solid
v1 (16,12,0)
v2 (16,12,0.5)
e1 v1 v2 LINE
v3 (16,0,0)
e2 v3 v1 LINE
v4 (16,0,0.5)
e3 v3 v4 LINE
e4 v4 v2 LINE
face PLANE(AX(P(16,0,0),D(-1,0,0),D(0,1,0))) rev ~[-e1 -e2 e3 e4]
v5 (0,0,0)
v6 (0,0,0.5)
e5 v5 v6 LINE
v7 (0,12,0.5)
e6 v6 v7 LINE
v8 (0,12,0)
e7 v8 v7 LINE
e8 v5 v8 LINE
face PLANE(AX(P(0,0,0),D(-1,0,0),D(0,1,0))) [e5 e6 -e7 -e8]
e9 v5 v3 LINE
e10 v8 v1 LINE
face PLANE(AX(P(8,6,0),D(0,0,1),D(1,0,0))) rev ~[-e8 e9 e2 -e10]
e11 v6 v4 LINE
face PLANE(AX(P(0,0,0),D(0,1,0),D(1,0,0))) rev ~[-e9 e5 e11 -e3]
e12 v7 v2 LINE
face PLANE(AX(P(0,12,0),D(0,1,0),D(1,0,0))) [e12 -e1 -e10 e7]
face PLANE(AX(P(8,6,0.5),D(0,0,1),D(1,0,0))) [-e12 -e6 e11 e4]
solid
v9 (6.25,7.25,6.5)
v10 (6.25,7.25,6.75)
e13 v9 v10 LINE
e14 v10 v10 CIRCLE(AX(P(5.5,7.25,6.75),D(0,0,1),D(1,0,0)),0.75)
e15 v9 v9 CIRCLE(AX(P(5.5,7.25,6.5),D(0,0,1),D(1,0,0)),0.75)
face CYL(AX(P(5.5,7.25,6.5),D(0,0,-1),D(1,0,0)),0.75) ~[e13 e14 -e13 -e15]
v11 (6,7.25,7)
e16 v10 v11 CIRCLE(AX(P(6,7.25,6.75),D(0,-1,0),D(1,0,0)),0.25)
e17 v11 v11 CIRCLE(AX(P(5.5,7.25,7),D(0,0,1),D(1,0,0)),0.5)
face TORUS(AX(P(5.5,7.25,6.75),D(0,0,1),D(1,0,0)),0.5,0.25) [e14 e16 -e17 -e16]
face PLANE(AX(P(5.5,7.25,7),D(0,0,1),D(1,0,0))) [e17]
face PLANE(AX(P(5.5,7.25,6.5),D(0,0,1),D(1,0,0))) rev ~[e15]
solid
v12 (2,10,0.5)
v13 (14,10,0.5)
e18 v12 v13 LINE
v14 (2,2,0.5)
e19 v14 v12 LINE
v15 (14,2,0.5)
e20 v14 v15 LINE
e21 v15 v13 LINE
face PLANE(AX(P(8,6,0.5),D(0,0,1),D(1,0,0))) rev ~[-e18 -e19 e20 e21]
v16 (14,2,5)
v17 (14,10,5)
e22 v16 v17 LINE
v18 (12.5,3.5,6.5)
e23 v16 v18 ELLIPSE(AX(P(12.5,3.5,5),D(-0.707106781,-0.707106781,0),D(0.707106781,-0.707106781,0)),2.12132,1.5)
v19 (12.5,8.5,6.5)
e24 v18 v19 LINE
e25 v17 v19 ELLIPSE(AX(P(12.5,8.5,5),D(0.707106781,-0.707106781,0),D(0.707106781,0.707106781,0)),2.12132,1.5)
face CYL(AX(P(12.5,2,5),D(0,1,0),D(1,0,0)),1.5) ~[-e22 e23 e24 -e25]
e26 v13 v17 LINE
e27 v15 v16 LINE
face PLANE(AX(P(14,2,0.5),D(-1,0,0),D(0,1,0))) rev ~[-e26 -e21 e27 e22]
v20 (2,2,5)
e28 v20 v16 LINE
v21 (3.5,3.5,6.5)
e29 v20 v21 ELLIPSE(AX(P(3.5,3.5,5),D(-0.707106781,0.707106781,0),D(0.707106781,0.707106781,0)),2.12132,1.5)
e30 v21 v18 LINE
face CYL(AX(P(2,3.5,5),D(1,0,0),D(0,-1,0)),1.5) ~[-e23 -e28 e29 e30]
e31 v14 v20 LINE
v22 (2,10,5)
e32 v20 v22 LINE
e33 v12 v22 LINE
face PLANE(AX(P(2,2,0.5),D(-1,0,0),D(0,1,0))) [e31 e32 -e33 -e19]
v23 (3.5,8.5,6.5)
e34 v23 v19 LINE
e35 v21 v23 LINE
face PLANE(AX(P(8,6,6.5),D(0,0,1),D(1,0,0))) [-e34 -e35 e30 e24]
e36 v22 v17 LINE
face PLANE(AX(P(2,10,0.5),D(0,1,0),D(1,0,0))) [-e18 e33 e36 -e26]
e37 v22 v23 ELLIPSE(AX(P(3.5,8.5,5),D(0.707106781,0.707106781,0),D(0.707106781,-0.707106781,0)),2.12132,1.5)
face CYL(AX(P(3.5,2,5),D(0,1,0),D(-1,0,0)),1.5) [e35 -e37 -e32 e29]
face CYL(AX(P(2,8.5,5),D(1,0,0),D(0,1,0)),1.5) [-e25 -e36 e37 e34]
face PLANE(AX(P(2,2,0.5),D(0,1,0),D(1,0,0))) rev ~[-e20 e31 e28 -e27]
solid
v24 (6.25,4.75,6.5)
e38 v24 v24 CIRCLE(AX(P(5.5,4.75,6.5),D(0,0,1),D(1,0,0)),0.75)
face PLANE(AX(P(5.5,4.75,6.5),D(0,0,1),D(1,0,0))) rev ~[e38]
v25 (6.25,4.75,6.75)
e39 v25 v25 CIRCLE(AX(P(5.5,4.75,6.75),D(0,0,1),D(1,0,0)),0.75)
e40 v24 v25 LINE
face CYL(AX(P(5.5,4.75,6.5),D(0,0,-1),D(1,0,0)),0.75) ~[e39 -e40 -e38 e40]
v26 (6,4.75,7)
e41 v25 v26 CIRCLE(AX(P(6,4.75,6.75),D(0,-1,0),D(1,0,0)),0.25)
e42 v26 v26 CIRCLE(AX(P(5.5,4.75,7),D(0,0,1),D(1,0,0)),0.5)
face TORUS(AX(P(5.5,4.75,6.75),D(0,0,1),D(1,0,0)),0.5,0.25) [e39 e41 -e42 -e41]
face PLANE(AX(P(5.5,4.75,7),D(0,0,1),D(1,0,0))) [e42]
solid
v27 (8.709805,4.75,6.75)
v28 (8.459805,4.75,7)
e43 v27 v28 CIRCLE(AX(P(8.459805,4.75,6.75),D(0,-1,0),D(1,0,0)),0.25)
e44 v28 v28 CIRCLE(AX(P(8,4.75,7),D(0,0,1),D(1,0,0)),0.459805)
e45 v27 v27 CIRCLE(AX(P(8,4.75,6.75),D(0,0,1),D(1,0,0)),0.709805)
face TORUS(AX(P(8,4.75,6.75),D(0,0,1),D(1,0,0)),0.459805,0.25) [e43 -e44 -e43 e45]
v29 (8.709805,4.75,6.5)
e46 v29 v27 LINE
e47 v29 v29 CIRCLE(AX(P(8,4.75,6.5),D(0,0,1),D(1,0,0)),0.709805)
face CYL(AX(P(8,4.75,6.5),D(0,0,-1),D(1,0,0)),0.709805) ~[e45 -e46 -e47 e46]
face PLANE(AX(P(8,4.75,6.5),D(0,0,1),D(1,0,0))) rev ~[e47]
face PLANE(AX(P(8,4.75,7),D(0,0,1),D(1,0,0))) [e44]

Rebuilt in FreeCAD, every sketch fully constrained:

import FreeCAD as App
import Part
import Sketcher

V = App.Vector
Q = App.Units.Quantity


def edges_at(feature, points):
    """Names of the edges that pass closest to the given points."""
    edges = feature.Shape.Edges
    near = lambda p: min(range(len(edges)), key=lambda i: edges[i].distToShape(Part.Vertex(*p))[0])
    return sorted({f"Edge{near(p) + 1}" for p in points})


def add_polygon(sketch, points):
    """Adds a closed chain of lines whose ends are joined by coincident constraints."""
    first, n = sketch.GeometryCount, len(points)
    for a, b in zip(points, points[1:] + points[:1]):
        sketch.addGeometry(Part.LineSegment(App.Vector(*a, 0), App.Vector(*b, 0)), False)
    for i in range(n):
        sketch.addConstraint(Sketcher.Constraint("Coincident", first + i, 2, first + (i + 1) % n, 1))

doc = App.newDocument("Part")
body = doc.addObject("PartDesign::Body", "Body")

# Sketch on XY plane
sketch1 = body.newObject("Sketcher::SketchObject", "Sketch")
sketch1.AttachmentSupport = (doc.getObject("XY_Plane"), [""])
sketch1.MapMode = "FlatFace"
add_polygon(sketch1, [(0, 12), (0, 0), (16, 0), (16, 12)])  # lines 0-3
sketch1.addConstraint(Sketcher.Constraint("Vertical", 0))
sketch1.addConstraint(Sketcher.Constraint("Horizontal", 1))
sketch1.addConstraint(Sketcher.Constraint("Vertical", 2))
sketch1.addConstraint(Sketcher.Constraint("Horizontal", 3))
sketch1.addConstraint(Sketcher.Constraint("Coincident", 0, 2, -1, 1))
sketch1.addConstraint(Sketcher.Constraint("DistanceX", 1, 1, 1, 2, Q("16 mm")))
sketch1.addConstraint(Sketcher.Constraint("DistanceY", 0, 2, 0, 1, Q("12 mm")))
pad1 = body.newObject("PartDesign::Pad", "Pad")
pad1.Profile = sketch1
pad1.Length = 0.5
body2 = doc.addObject("PartDesign::Body", "Body001")

# Sketch on XY plane
sketch2 = body2.newObject("Sketcher::SketchObject", "Sketch001")
sketch2.AttachmentSupport = (doc.getObject("XY_Plane001"), [""])
sketch2.MapMode = "FlatFace"
sketch2.AttachmentOffset = App.Placement(V(0, 0, 0.5), App.Rotation())
add_polygon(sketch2, [(2, 10), (2, 2), (14, 2), (14, 10)])  # lines 0-3
sketch2.addConstraint(Sketcher.Constraint("Vertical", 0))
sketch2.addConstraint(Sketcher.Constraint("Horizontal", 1))
sketch2.addConstraint(Sketcher.Constraint("Vertical", 2))
sketch2.addConstraint(Sketcher.Constraint("Horizontal", 3))
sketch2.addConstraint(Sketcher.Constraint("DistanceX", 1, 1, 1, 2, Q("12 mm")))
sketch2.addConstraint(Sketcher.Constraint("DistanceY", 0, 2, 0, 1, Q("8 mm")))
sketch2.addConstraint(Sketcher.Constraint("DistanceX", -1, 1, 0, 2, Q("2 mm")))
sketch2.addConstraint(Sketcher.Constraint("DistanceY", -1, 1, 0, 2, Q("2 mm")))
pad2 = body2.newObject("PartDesign::Pad", "Pad001")
pad2.Profile = sketch2
pad2.Length = 6
doc.recompute()

fillet = body2.newObject("PartDesign::Fillet", "Fillet")
fillet.Base = (pad2, edges_at(pad2, [
    (8, 2, 6.5),
    (14, 6, 6.5),
    (8, 10, 6.5),
    (2, 6, 6.5),
]))
fillet.Radius = 1.5
body3 = doc.addObject("PartDesign::Body", "Body002")

# Sketch on XY plane
sketch3 = body3.newObject("Sketcher::SketchObject", "Sketch002")
sketch3.AttachmentSupport = (doc.getObject("XY_Plane002"), [""])
sketch3.MapMode = "FlatFace"
sketch3.AttachmentOffset = App.Placement(V(0, 0, 6.5), App.Rotation())
sketch3.addGeometry(Part.Circle(V(5.5, 4.8, 0), V(0, 0, 1), 0.8), False)
sketch3.addConstraint(Sketcher.Constraint("Diameter", 0, Q("1.5 mm")))
sketch3.addConstraint(Sketcher.Constraint("DistanceX", -1, 1, 0, 3, Q("5.5 mm")))
sketch3.addConstraint(Sketcher.Constraint("DistanceY", -1, 1, 0, 3, Q("4.75 mm")))
pad3 = body3.newObject("PartDesign::Pad", "Pad002")
pad3.Profile = sketch3
pad3.Length = 0.5
doc.recompute()

fillet2 = body3.newObject("PartDesign::Fillet", "Fillet001")
fillet2.Base = (pad3, edges_at(pad3, [(4.75, 4.75, 7)]))
fillet2.Radius = 0.25
body4 = doc.addObject("PartDesign::Body", "Body003")

# Sketch on XY plane
sketch4 = body4.newObject("Sketcher::SketchObject", "Sketch003")
sketch4.AttachmentSupport = (doc.getObject("XY_Plane003"), [""])
sketch4.MapMode = "FlatFace"
sketch4.AttachmentOffset = App.Placement(V(0, 0, 6.5), App.Rotation())
sketch4.addGeometry(Part.Circle(V(8, 4.8, 0), V(0, 0, 1), 0.7), False)
sketch4.addConstraint(Sketcher.Constraint("DistanceX", -1, 1, 0, 3, Q("8 mm")))
sketch4.addConstraint(Sketcher.Constraint("Diameter", 0, Q("1.41961 mm")))
sketch4.addConstraint(Sketcher.Constraint("DistanceY", -1, 1, 0, 3, Q("4.75 mm")))
pad4 = body4.newObject("PartDesign::Pad", "Pad003")
pad4.Profile = sketch4
pad4.Length = 0.5
doc.recompute()

fillet3 = body4.newObject("PartDesign::Fillet", "Fillet002")
fillet3.Base = (pad4, edges_at(pad4, [(7.29, 4.75, 7)]))
fillet3.Radius = 0.25
body5 = doc.addObject("PartDesign::Body", "Body004")

# Sketch on XY plane
sketch5 = body5.newObject("Sketcher::SketchObject", "Sketch004")
sketch5.AttachmentSupport = (doc.getObject("XY_Plane004"), [""])
sketch5.MapMode = "FlatFace"
sketch5.AttachmentOffset = App.Placement(V(0, 0, 6.5), App.Rotation())
sketch5.addGeometry(Part.Circle(V(5.5, 7.2, 0), V(0, 0, 1), 0.8), False)
sketch5.addConstraint(Sketcher.Constraint("Diameter", 0, Q("1.5 mm")))
sketch5.addConstraint(Sketcher.Constraint("DistanceX", -1, 1, 0, 3, Q("5.5 mm")))
sketch5.addConstraint(Sketcher.Constraint("DistanceY", -1, 1, 0, 3, Q("7.25 mm")))
pad5 = body5.newObject("PartDesign::Pad", "Pad004")
pad5.Profile = sketch5
pad5.Length = 0.5
doc.recompute()

fillet4 = body5.newObject("PartDesign::Fillet", "Fillet003")
fillet4.Base = (pad5, edges_at(pad5, [(4.75, 7.25, 7)]))
fillet4.Radius = 0.25

doc.recompute()
